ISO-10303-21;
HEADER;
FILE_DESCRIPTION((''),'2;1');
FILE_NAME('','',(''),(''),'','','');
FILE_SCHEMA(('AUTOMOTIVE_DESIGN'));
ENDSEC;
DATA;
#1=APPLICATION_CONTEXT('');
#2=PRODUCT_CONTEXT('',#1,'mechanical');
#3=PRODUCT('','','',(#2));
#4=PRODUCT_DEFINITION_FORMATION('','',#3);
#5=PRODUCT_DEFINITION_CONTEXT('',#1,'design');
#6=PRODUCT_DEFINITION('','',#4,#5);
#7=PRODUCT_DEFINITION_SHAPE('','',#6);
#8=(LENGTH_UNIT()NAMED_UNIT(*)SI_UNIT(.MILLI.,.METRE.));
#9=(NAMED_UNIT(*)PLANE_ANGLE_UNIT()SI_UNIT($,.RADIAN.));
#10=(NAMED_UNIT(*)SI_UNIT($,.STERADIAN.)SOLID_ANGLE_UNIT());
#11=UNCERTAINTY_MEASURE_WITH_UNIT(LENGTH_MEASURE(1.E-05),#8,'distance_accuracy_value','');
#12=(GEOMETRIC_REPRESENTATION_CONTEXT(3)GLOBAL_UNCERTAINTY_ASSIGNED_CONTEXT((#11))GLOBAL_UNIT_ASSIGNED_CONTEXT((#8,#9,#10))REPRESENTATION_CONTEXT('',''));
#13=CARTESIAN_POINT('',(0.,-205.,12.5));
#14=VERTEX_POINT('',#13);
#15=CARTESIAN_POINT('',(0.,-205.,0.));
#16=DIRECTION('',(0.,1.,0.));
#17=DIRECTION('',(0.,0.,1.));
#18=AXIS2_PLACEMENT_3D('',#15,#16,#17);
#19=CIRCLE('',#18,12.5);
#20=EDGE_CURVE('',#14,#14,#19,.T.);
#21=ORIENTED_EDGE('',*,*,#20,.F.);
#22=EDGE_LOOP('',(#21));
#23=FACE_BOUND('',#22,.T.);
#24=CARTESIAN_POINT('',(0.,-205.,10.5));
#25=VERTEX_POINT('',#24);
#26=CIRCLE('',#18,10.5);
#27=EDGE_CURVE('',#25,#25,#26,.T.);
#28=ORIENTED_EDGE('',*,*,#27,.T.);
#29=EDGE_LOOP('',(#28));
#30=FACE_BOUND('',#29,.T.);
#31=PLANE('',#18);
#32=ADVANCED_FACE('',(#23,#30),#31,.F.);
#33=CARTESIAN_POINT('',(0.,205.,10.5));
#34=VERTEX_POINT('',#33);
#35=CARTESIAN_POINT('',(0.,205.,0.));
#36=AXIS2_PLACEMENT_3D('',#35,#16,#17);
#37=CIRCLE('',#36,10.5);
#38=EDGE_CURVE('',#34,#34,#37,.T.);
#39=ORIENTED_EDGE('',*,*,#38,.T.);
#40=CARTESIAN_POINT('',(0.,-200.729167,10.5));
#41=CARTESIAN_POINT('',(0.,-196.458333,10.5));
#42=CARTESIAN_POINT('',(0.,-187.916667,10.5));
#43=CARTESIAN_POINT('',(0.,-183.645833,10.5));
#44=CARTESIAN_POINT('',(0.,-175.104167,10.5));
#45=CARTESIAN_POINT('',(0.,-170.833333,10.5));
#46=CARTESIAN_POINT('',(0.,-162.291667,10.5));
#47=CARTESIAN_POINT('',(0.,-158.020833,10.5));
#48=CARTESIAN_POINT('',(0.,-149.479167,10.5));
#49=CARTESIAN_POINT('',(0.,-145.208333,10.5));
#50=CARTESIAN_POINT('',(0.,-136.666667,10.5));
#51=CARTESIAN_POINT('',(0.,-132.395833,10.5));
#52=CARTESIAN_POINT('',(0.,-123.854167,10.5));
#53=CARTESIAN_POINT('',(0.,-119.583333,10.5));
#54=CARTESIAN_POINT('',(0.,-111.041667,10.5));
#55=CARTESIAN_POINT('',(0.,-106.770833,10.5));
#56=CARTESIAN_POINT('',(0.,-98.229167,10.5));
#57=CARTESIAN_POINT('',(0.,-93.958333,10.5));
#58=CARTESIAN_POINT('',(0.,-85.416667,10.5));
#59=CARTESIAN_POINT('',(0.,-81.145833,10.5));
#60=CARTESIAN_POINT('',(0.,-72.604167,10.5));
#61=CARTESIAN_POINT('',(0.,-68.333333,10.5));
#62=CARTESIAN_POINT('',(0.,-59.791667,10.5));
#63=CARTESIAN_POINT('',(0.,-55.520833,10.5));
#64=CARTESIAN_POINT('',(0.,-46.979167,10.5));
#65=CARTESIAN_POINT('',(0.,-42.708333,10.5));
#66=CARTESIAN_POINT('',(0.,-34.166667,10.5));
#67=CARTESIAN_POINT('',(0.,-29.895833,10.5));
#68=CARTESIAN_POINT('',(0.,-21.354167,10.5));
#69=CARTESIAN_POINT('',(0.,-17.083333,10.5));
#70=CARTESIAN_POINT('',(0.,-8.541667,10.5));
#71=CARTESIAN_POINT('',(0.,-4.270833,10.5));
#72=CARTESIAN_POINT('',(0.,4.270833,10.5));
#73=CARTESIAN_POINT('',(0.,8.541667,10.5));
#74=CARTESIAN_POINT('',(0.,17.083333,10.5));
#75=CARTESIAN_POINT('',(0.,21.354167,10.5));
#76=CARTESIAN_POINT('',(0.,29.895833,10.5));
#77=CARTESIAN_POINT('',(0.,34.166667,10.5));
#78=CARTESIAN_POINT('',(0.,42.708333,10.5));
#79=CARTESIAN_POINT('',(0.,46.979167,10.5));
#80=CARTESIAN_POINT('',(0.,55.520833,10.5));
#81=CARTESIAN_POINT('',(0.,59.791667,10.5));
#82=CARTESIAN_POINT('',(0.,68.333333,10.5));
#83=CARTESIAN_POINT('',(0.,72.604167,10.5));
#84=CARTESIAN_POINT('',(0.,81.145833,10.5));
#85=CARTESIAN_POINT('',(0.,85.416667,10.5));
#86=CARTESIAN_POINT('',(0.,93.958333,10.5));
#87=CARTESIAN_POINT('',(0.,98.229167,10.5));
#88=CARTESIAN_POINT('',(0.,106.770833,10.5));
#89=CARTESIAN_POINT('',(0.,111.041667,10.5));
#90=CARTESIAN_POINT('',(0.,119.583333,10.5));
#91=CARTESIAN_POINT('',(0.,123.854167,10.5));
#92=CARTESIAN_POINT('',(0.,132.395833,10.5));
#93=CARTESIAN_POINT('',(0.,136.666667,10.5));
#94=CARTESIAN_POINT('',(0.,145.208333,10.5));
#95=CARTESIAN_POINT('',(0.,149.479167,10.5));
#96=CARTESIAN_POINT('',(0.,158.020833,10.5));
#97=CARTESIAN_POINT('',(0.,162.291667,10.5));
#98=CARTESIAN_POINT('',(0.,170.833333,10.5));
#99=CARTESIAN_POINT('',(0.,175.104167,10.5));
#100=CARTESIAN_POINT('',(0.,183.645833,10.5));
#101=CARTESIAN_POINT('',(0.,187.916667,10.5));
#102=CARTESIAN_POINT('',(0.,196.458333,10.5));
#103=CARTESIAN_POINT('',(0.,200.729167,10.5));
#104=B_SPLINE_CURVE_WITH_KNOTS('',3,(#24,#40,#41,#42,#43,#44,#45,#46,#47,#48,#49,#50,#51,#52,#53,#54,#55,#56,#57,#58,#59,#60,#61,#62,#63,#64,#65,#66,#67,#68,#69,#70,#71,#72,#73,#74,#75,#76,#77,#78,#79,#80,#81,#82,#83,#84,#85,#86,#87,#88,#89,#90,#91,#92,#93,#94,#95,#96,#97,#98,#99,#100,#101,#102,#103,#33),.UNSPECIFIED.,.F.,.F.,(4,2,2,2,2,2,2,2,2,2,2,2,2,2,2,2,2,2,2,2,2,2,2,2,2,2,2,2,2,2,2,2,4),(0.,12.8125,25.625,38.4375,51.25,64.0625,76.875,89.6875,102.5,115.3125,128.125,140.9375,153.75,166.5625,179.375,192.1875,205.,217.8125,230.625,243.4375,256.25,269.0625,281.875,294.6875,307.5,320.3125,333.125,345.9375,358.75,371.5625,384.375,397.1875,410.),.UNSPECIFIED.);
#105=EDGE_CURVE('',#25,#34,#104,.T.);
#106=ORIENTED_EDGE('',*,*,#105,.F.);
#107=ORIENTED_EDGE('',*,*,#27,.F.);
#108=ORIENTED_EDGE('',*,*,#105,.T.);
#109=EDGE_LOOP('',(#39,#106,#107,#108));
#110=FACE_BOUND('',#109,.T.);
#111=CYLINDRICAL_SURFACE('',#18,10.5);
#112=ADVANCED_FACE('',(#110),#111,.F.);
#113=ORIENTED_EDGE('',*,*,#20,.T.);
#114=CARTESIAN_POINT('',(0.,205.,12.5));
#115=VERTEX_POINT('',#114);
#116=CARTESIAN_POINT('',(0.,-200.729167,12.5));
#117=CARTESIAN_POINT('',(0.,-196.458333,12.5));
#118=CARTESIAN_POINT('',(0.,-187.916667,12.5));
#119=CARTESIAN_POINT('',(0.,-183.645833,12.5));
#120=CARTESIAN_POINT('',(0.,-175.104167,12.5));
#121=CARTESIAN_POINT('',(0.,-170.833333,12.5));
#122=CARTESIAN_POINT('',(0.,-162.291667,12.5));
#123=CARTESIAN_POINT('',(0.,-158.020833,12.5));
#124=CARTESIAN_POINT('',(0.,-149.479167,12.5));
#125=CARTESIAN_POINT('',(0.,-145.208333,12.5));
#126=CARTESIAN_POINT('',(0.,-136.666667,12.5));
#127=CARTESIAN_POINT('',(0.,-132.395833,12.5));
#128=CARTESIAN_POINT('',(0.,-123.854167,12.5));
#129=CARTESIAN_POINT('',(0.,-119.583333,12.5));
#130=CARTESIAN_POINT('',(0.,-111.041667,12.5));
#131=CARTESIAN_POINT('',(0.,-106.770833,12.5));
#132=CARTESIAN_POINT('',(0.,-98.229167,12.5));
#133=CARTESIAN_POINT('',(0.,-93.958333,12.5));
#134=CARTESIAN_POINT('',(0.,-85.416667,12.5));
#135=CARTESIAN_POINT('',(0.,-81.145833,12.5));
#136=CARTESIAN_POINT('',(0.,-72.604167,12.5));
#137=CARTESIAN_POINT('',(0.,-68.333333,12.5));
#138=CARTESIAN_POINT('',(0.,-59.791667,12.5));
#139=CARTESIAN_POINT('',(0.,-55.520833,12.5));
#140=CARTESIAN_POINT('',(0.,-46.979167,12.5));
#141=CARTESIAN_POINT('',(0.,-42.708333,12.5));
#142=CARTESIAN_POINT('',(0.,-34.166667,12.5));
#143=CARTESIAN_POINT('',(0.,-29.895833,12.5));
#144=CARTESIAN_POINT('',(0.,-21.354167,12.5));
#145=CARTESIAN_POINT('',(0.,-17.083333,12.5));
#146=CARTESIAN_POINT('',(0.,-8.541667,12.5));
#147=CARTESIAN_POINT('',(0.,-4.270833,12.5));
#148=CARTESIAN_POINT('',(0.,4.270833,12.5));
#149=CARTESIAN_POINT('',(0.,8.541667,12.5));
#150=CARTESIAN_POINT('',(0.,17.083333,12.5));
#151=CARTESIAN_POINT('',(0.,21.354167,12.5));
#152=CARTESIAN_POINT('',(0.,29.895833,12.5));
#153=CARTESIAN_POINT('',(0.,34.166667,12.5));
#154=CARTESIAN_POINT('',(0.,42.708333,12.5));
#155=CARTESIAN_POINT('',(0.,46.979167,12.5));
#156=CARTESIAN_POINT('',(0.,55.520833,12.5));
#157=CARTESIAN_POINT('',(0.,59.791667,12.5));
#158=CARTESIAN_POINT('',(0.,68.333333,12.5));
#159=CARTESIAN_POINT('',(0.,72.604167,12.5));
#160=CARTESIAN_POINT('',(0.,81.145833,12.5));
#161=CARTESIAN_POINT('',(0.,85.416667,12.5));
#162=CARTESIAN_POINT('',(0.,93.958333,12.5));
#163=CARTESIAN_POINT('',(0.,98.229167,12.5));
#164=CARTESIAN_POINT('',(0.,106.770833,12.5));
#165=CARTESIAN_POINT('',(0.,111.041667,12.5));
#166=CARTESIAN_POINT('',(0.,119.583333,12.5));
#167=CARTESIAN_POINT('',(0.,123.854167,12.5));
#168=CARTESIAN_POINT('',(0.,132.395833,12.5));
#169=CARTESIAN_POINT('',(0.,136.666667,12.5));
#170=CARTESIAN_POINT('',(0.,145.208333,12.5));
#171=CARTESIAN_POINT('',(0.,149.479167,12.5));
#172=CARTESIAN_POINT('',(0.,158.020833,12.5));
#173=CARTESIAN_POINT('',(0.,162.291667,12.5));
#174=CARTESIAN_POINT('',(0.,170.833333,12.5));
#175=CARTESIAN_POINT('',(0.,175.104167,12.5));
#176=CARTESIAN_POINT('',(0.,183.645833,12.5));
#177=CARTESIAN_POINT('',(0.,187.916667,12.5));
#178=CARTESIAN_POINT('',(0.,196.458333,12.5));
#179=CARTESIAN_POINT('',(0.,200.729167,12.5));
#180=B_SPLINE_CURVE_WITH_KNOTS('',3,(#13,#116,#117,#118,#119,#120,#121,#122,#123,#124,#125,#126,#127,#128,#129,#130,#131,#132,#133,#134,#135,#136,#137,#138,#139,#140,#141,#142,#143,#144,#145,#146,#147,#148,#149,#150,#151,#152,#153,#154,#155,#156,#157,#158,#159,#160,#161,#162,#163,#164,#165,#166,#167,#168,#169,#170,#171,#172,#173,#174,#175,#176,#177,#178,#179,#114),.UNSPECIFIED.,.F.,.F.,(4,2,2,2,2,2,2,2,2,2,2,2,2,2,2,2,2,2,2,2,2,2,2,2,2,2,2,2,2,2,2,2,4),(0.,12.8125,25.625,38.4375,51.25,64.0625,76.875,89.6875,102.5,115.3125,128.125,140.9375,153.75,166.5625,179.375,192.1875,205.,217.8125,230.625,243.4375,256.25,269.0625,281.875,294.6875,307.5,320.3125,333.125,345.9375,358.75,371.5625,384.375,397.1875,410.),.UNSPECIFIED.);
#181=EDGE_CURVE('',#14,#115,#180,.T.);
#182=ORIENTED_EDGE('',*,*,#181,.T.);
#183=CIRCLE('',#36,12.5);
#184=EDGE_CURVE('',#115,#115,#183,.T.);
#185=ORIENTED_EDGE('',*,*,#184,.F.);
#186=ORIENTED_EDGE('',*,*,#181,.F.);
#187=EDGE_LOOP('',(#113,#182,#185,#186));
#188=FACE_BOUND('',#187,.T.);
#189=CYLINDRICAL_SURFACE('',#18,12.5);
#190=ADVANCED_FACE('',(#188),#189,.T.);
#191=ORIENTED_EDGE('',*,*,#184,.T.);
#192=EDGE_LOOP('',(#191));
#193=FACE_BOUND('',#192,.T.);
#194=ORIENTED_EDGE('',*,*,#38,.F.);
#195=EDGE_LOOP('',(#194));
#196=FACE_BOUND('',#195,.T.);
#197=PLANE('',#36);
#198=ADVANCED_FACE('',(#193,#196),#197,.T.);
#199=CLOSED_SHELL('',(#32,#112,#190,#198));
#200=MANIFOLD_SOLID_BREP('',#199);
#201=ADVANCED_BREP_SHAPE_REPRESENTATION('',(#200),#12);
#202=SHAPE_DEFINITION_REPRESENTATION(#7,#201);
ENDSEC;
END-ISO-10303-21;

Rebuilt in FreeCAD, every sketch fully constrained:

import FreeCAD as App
import Part
import Sketcher

doc = App.newDocument("Part")
body = doc.addObject("PartDesign::Body", "Body")

# Sketch on XZ plane
sketch1 = body.newObject("Sketcher::SketchObject", "Sketch")
sketch1.AttachmentSupport = (doc.getObject("XZ_Plane"), [""])
sketch1.MapMode = "FlatFace"
sketch1.addGeometry([
    Part.Circle(App.Vector(0, 0, 0), App.Vector(0, 0, 1), 12.5),
    Part.Circle(App.Vector(0, 0, 0), App.Vector(0, 0, 1), 10.5),
], False)
sketch1.addConstraint([
    Sketcher.Constraint("Coincident", 0, 3, -1, 1),
    Sketcher.Constraint("Coincident", 1, 3, -1, 1),
    Sketcher.Constraint("Diameter", 0, 25.0),
    Sketcher.Constraint("Diameter", 1, 21.0),
])
pad1 = body.newObject("PartDesign::Pad", "Pad")
pad1.Profile = sketch1
pad1.Type = "TwoLengths"
pad1.Length = 205
pad1.Length2 = 205
pad1.Reversed = True

doc.recompute()
